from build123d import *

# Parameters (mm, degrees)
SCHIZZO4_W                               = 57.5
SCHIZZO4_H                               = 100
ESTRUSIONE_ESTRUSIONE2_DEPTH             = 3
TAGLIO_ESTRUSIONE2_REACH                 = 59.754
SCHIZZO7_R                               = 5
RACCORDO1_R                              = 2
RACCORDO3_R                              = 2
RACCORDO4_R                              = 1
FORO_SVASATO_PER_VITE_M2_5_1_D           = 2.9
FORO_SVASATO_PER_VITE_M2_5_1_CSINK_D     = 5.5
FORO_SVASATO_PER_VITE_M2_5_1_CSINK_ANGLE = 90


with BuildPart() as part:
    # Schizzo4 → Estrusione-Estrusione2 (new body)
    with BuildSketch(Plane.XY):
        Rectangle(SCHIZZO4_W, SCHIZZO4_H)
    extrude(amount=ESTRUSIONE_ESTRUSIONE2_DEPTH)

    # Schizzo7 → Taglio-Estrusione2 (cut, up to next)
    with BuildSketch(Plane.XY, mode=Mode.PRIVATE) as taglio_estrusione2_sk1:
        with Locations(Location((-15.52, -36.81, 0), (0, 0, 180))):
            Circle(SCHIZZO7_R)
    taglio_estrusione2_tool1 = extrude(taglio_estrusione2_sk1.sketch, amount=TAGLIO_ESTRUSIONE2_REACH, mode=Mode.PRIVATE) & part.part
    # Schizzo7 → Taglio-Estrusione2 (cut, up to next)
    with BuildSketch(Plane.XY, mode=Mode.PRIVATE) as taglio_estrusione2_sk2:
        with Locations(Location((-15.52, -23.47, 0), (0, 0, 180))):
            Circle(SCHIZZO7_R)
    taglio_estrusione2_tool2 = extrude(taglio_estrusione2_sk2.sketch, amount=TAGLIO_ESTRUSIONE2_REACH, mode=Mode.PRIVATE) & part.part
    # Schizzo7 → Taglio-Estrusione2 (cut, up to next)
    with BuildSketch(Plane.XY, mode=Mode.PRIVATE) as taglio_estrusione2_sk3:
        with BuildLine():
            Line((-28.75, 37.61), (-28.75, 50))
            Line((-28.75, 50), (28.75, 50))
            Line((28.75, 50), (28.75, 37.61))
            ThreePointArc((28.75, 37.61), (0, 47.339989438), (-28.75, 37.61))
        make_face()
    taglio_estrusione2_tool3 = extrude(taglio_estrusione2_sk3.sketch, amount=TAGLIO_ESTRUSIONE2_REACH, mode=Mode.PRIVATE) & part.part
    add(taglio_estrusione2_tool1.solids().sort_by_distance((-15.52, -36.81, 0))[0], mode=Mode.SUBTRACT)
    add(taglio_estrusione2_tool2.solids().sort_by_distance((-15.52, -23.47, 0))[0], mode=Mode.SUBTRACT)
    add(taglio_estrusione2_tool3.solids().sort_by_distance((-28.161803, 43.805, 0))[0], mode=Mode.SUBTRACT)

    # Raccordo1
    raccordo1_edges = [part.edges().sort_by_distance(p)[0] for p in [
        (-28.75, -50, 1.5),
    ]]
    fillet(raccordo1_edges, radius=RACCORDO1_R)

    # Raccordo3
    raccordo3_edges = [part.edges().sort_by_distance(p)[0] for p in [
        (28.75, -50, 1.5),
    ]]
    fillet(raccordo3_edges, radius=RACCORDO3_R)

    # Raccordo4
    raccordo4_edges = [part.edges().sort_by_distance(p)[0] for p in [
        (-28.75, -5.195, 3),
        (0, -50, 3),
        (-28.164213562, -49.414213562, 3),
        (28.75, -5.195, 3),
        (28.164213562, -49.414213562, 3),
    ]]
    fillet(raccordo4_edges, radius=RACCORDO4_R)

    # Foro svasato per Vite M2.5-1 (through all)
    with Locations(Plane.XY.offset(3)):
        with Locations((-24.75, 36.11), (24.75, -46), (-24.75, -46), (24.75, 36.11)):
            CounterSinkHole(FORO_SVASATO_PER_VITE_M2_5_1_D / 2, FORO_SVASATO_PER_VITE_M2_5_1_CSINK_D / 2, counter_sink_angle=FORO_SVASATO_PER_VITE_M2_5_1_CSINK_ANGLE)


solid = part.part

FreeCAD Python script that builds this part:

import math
import FreeCAD as App
import Part
import Sketcher


def edges_at(feature, points):
    """Names of the edges that pass closest to the given points."""
    edges = feature.Shape.Edges
    near = lambda p: min(range(len(edges)), key=lambda i: edges[i].distToShape(Part.Vertex(*p))[0])
    return sorted({f"Edge{near(p) + 1}" for p in points})

doc = App.newDocument("Part")
body = doc.addObject("PartDesign::Body", "Body")

sketch1 = doc.addObject("Sketcher::SketchObject", "Sketch")
body.addObject(sketch1)
sketch1.AttachmentSupport = (doc.XY_Plane, [""])
sketch1.MapMode = "FlatFace"
sketch1.addGeometry(Part.LineSegment(App.Vector(-29, 50, 0), App.Vector(-29, -50, 0)), False)
sketch1.addGeometry(Part.LineSegment(App.Vector(-29, -50, 0), App.Vector(29, -50, 0)), False)
sketch1.addGeometry(Part.LineSegment(App.Vector(29, -50, 0), App.Vector(29, 50, 0)), False)
sketch1.addGeometry(Part.LineSegment(App.Vector(29, 50, 0), App.Vector(-29, 50, 0)), False)
sketch1.addConstraint(Sketcher.Constraint("Coincident", 0, 2, 1, 1))
sketch1.addConstraint(Sketcher.Constraint("Coincident", 1, 2, 2, 1))
sketch1.addConstraint(Sketcher.Constraint("Coincident", 2, 2, 3, 1))
sketch1.addConstraint(Sketcher.Constraint("Coincident", 3, 2, 0, 1))
sketch1.addConstraint(Sketcher.Constraint("Vertical", 0))
sketch1.addConstraint(Sketcher.Constraint("Horizontal", 1))
sketch1.addConstraint(Sketcher.Constraint("Vertical", 2))
sketch1.addConstraint(Sketcher.Constraint("Horizontal", 3))
sketch1.addConstraint(Sketcher.Constraint("Symmetric", 0, 2, 2, 2, -1, 1))
sketch1.addConstraint(Sketcher.Constraint("DistanceY", 0, 2, 0, 1, 100.0))
sketch1.addConstraint(Sketcher.Constraint("DistanceX", 1, 1, 1, 2, 57.5))
pad1 = doc.addObject("PartDesign::Pad", "Pad")
body.addObject(pad1)
pad1.Profile = sketch1
pad1.Length = 3

sketch2 = doc.addObject("Sketcher::SketchObject", "Sketch001")
body.addObject(sketch2)
sketch2.AttachmentSupport = (doc.XY_Plane, [""])
sketch2.MapMode = "FlatFace"
sketch2.addGeometry(Part.Circle(App.Vector(-16, -37, 0), App.Vector(0, 0, 1), 5), False)
sketch2.addConstraint(Sketcher.Constraint("Diameter", 0, 10.0))
sketch2.addConstraint(Sketcher.Constraint("DistanceX", 0, 3, -1, 1, 15.52))
sketch2.addConstraint(Sketcher.Constraint("DistanceY", 0, 3, -1, 1, 36.81))
pocket1 = doc.addObject("PartDesign::Pocket", "Pocket")
body.addObject(pocket1)
pocket1.Profile = sketch2
pocket1.Type = "UpToFirst"
pocket1.Reversed = True

sketch3 = doc.addObject("Sketcher::SketchObject", "Sketch002")
body.addObject(sketch3)
sketch3.AttachmentSupport = (doc.XY_Plane, [""])
sketch3.MapMode = "FlatFace"
sketch3.addGeometry(Part.Circle(App.Vector(-16, -23, 0), App.Vector(0, 0, 1), 5), False)
sketch3.addConstraint(Sketcher.Constraint("Diameter", 0, 10.0))
sketch3.addConstraint(Sketcher.Constraint("DistanceX", 0, 3, -1, 1, 15.52))
sketch3.addConstraint(Sketcher.Constraint("DistanceY", 0, 3, -1, 1, 23.47))
pocket2 = doc.addObject("PartDesign::Pocket", "Pocket001")
body.addObject(pocket2)
pocket2.Profile = sketch3
pocket2.Type = "UpToFirst"
pocket2.Reversed = True

sketch4 = doc.addObject("Sketcher::SketchObject", "Sketch003")
body.addObject(sketch4)
sketch4.AttachmentSupport = (doc.XY_Plane, [""])
sketch4.MapMode = "FlatFace"
sketch4.addGeometry(Part.LineSegment(App.Vector(-29, 50, 0), App.Vector(-29, 38, 0)), False)
sketch4.addGeometry(Part.ArcOfCircle(Part.Circle(App.Vector(0, 0, 0), App.Vector(0, 0, 1), 47), math.radians(53), math.radians(127)), False)
sketch4.addGeometry(Part.LineSegment(App.Vector(29, 38, 0), App.Vector(29, 50, 0)), False)
sketch4.addGeometry(Part.LineSegment(App.Vector(29, 50, 0), App.Vector(-29, 50, 0)), False)
sketch4.addConstraint(Sketcher.Constraint("Coincident", 0, 2, 1, 2))
sketch4.addConstraint(Sketcher.Constraint("Coincident", 1, 1, 2, 1))
sketch4.addConstraint(Sketcher.Constraint("Coincident", 2, 2, 3, 1))
sketch4.addConstraint(Sketcher.Constraint("Coincident", 3, 2, 0, 1))
sketch4.addConstraint(Sketcher.Constraint("Vertical", 0))
sketch4.addConstraint(Sketcher.Constraint("Vertical", 2))
sketch4.addConstraint(Sketcher.Constraint("Horizontal", 3))
sketch4.addConstraint(Sketcher.Constraint("Coincident", 1, 3, -1, 1))
sketch4.addConstraint(Sketcher.Constraint("Horizontal", 0, 2, 1, 1))
sketch4.addConstraint(Sketcher.Constraint("DistanceX", 3, 2, 3, 1, 57.5))
sketch4.addConstraint(Sketcher.Constraint("DistanceY", -1, 1, 2, 2, 50.0))
sketch4.addConstraint(Sketcher.Constraint("DistanceY", 0, 2, 0, 1, 12.39))
pocket3 = doc.addObject("PartDesign::Pocket", "Pocket002")
body.addObject(pocket3)
pocket3.Profile = sketch4
pocket3.Type = "UpToFirst"
pocket3.Reversed = True
doc.recompute()

fillet = doc.addObject("PartDesign::Fillet", "Fillet")
body.addObject(fillet)
fillet.Base = (pocket3, edges_at(pocket3, [(-28.75, -50, 1.5)]))
fillet.Radius = 2
doc.recompute()

fillet2 = doc.addObject("PartDesign::Fillet", "Fillet001")
body.addObject(fillet2)
fillet2.Base = (fillet, edges_at(fillet, [(28.75, -50, 1.5)]))
fillet2.Radius = 2
doc.recompute()

fillet3 = doc.addObject("PartDesign::Fillet", "Fillet002")
body.addObject(fillet3)
fillet3.Base = (fillet2, edges_at(fillet2, [
    (-28.75, -5.195, 3),
    (0, -50, 3),
    (-28.164, -49.414, 3),
    (28.75, -5.195, 3),
    (28.164, -49.414, 3),
]))
fillet3.Radius = 1

sketch5 = doc.addObject("Sketcher::SketchObject", "Sketch004")
body.addObject(sketch5)
sketch5.AttachmentSupport = (doc.XY_Plane, [""])
sketch5.MapMode = "FlatFace"
sketch5.AttachmentOffset = App.Placement(App.Vector(0, 0, 3), App.Rotation())
sketch5.addGeometry(Part.Circle(App.Vector(-24.8, 36.1, 0), App.Vector(0, 0, 1), 1.4), False)
sketch5.addGeometry(Part.Circle(App.Vector(24.8, -46, 0), App.Vector(0, 0, 1), 1.4), False)
sketch5.addGeometry(Part.Circle(App.Vector(-24.8, -46, 0), App.Vector(0, 0, 1), 1.4), False)
sketch5.addGeometry(Part.Circle(App.Vector(24.8, 36.1, 0), App.Vector(0, 0, 1), 1.4), False)
sketch5.addConstraint(Sketcher.Constraint("Equal", 0, 1))
sketch5.addConstraint(Sketcher.Constraint("Equal", 1, 2))
sketch5.addConstraint(Sketcher.Constraint("Equal", 2, 3))
sketch5.addConstraint(Sketcher.Constraint("Symmetric", 1, 3, 2, 3, -2))
sketch5.addConstraint(Sketcher.Constraint("Symmetric", 0, 3, 3, 3, -2))
sketch5.addConstraint(Sketcher.Constraint("Vertical", 0, 3, 2, 3))
sketch5.addConstraint(Sketcher.Constraint("Diameter", 0, 2.9))
sketch5.addConstraint(Sketcher.Constraint("DistanceY", 1, 3, -1, 1, 46.0))
sketch5.addConstraint(Sketcher.Constraint("DistanceX", 0, 3, 1, 3, 49.5))
sketch5.addConstraint(Sketcher.Constraint("DistanceY", -1, 1, 0, 3, 36.11))
doc.recompute()
hole = doc.addObject("PartDesign::Hole", "Hole")
body.addObject(hole)
hole.Profile = sketch5
hole.ThreadType = "None"
hole.Diameter = 2.9
hole.DepthType = "ThroughAll"
hole.HoleCutType = "Countersink"
hole.HoleCutDiameter = 5.5
hole.HoleCutCountersinkAngle = 90

doc.recompute()
